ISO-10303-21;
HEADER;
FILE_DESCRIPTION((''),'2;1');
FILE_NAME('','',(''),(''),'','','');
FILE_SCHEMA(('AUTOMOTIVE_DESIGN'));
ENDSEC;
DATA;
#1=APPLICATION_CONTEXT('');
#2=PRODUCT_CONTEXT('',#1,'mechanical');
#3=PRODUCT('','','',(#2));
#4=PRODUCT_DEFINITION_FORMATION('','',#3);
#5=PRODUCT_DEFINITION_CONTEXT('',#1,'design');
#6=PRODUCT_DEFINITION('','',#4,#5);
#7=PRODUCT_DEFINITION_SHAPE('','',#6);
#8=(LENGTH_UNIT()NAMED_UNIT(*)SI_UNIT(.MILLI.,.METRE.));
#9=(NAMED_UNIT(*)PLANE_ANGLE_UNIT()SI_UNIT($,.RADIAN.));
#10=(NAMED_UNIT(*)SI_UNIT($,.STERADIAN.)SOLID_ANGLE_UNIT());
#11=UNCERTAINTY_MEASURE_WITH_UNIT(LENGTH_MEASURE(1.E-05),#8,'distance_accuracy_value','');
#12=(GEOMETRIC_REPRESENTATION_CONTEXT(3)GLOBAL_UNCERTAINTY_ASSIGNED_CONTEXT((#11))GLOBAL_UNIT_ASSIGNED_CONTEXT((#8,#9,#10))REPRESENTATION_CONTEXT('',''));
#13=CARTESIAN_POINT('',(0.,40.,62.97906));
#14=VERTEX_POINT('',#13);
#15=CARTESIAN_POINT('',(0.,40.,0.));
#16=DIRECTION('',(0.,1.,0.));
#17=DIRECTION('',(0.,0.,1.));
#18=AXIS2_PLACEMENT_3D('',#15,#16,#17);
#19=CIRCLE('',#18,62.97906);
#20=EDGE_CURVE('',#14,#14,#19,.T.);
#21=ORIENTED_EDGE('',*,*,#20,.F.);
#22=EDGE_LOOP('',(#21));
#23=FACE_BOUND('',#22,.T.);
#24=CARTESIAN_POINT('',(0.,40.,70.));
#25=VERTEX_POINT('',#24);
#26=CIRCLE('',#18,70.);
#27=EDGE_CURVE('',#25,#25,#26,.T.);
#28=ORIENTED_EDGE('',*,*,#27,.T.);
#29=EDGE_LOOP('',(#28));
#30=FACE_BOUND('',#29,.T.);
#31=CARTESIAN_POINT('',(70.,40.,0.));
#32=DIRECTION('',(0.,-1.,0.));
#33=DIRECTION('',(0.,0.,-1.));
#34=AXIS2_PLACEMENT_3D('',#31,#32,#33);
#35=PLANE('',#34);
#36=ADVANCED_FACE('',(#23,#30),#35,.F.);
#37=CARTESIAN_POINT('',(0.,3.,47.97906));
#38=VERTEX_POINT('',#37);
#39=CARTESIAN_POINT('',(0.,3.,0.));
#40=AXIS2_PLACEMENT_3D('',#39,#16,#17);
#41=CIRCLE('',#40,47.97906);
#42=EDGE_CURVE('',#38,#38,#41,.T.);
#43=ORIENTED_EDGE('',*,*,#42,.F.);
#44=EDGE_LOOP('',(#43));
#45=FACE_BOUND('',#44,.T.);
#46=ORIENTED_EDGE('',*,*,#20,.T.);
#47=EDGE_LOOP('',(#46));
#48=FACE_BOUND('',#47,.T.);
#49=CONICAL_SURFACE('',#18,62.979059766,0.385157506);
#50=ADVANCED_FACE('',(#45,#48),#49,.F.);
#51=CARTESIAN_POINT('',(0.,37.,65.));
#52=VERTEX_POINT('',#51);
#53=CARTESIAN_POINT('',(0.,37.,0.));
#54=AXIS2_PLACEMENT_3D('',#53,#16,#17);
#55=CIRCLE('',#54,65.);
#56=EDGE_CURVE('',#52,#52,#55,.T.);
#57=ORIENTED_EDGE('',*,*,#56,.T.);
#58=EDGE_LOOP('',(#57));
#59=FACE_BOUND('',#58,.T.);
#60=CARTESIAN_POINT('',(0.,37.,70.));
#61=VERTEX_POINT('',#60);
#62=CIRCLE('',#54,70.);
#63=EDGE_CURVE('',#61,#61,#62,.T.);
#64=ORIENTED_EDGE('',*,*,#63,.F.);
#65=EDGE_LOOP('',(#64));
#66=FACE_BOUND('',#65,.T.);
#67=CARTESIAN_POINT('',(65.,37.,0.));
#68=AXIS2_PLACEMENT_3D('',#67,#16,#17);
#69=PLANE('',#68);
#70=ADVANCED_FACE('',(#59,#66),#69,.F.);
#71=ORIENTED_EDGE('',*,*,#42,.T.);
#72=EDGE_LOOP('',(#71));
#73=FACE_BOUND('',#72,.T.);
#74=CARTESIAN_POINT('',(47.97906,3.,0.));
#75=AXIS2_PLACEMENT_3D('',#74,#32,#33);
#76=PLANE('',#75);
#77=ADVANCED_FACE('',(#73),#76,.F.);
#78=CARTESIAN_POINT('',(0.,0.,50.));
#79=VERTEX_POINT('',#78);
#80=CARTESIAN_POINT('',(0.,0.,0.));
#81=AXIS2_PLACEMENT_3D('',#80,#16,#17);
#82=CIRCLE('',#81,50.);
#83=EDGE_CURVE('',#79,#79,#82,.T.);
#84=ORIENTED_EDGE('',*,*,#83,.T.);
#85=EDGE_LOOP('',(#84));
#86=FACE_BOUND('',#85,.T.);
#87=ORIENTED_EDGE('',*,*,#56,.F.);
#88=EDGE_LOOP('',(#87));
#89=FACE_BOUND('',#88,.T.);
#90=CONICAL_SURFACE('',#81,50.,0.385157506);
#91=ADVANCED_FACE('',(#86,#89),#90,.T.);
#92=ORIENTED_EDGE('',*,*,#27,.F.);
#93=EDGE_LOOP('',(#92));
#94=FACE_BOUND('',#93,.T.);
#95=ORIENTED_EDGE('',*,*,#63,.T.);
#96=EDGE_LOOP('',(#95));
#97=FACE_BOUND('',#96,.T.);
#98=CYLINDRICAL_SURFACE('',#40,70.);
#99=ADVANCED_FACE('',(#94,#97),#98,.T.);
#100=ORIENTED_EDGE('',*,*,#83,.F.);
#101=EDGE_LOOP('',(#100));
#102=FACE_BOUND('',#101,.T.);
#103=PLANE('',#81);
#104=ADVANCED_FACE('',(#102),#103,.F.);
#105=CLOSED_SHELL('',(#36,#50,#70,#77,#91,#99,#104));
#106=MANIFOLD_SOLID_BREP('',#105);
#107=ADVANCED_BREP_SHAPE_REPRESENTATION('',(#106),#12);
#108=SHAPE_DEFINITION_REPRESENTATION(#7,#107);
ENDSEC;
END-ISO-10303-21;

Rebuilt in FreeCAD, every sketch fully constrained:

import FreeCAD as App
import Part
import Sketcher

V = App.Vector


def add_polygon(sketch, points):
    """Adds a closed chain of lines whose ends are joined by coincident constraints."""
    first, n = sketch.GeometryCount, len(points)
    for a, b in zip(points, points[1:] + points[:1]):
        sketch.addGeometry(Part.LineSegment(App.Vector(*a, 0), App.Vector(*b, 0)), False)
    for i in range(n):
        sketch.addConstraint(Sketcher.Constraint("Coincident", first + i, 2, first + (i + 1) % n, 1))

doc = App.newDocument("Part")
body = doc.addObject("PartDesign::Body", "Body")

sketch1 = body.newObject("Sketcher::SketchObject", "Sketch")
sketch1.AttachmentSupport = (doc.getObject("XY_Plane"), [""])
sketch1.MapMode = "FlatFace"
add_polygon(sketch1, [(0, 0), (50, 0), (65, 37), (70, 37), (70, 40), (63, 40), (48, 3), (0, 3)])
sketch1.addConstraint([
    Sketcher.Constraint("Horizontal", 0),
    Sketcher.Constraint("Horizontal", 2),
    Sketcher.Constraint("Vertical", 3),
    Sketcher.Constraint("Horizontal", 4),
    Sketcher.Constraint("Horizontal", 6),
    Sketcher.Constraint("Vertical", 7),
    Sketcher.Constraint("Coincident", 7, 2, -1, 1),
    Sketcher.Constraint("Parallel", 1, 5),
    Sketcher.Constraint("Equal", 3, 7),
    Sketcher.Constraint("DistanceX", 0, 1, 0, 2, 50.0),
    Sketcher.Constraint("DistanceX", 2, 1, 2, 2, 5.0),
    Sketcher.Constraint("DistanceY", 3, 1, 3, 2, 3.0),
    Sketcher.Constraint("DistanceX", -1, 1, 1, 2, 65.0),
    Sketcher.Constraint("DistanceY", -1, 1, 1, 2, 37.0),
    Sketcher.Constraint("DistanceX", 4, 2, 4, 1, 7.02094),
])
revolution = body.newObject("PartDesign::Revolution", "Revolution")
revolution.Profile = sketch1
revolution.ReferenceAxis = (sketch1, ["V_Axis"])
revolution.Angle = 360

doc.recompute()
